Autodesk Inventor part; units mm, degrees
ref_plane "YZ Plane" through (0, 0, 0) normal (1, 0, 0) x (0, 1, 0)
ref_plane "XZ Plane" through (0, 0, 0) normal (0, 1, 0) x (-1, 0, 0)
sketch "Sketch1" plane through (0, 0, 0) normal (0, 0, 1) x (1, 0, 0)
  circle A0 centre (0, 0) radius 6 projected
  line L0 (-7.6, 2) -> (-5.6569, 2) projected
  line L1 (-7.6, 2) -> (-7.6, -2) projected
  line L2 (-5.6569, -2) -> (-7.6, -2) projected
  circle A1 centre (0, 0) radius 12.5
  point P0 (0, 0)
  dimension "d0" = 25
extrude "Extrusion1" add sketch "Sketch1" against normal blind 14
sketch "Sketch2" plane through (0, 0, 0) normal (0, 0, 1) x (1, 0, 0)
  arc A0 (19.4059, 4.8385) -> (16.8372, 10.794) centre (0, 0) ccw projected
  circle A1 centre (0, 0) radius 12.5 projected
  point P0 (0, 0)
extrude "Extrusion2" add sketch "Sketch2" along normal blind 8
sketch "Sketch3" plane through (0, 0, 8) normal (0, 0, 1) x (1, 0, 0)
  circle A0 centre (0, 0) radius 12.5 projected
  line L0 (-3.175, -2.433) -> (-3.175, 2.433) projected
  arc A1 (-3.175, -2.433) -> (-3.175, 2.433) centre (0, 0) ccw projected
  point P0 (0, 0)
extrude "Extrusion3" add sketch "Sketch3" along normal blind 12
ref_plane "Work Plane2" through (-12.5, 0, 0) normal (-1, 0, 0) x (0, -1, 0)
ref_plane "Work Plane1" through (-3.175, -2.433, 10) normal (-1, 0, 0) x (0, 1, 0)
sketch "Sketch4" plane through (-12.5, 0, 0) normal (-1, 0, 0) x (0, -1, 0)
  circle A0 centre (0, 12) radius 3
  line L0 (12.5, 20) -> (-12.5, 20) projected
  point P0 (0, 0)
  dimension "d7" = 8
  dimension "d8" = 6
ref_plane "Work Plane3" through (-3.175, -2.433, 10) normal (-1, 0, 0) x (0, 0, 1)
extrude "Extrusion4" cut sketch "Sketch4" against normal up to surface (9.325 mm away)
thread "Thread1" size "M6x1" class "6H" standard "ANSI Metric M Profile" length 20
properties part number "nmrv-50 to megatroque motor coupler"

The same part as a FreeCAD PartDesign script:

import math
import FreeCAD as App
import Part
import Sketcher

doc = App.newDocument("Part")
params = doc.addObject("Spreadsheet::Sheet", "Params")
for row, (alias, value) in enumerate([
    ("sketch1_diameter", "25 mm"),
    ("sketch1_radius", "6 mm"),
    ("sketch1_height", "4 mm"),
    ("pad1_length", "14 mm"),
    ("sketch2_diameter", "25 mm"),
    ("pad2_length", "8 mm"),
    ("sketch3_diameter", "25 mm"),
    ("sketch3_radius", "4 mm"),
    ("pad3_length", "12 mm"),
    ("sketch4_diameter", "6 mm"),
    ("pocket1_length", "9.325 mm"),
], start=1):
    params.set(f"A{row}", alias)
    params.set(f"B{row}", "=" + value)
    params.setAlias(f"B{row}", alias)

body = doc.addObject("PartDesign::Body", "Body")

sketch1 = doc.addObject("Sketcher::SketchObject", "Sketch")
body.addObject(sketch1)
sketch1.AttachmentSupport = (doc.XY_Plane, [""])
sketch1.MapMode = "FlatFace"
sketch1.addGeometry([
    Part.Circle(App.Vector(0, 0, 0), App.Vector(0, 0, 1), 12.5),
    Part.ArcOfCircle(Part.Circle(App.Vector(0, 0, 0), App.Vector(0, 0, 1), 6), math.radians(-160.528925), math.radians(160.528925)),
    Part.LineSegment(App.Vector(-5.6569, -2, 0), App.Vector(-7.6, -2, 0)),
    Part.LineSegment(App.Vector(-7.6, -2, 0), App.Vector(-7.6, 2, 0)),
    Part.LineSegment(App.Vector(-7.6, 2, 0), App.Vector(-5.6569, 2, 0)),
], False)
sketch1.addConstraint([
    Sketcher.Constraint("Coincident", 1, 1, 2, 1),
    Sketcher.Constraint("Coincident", 2, 2, 3, 1),
    Sketcher.Constraint("Coincident", 3, 2, 4, 1),
    Sketcher.Constraint("Coincident", 4, 2, 1, 2),
    Sketcher.Constraint("Horizontal", 2),
    Sketcher.Constraint("Vertical", 3),
    Sketcher.Constraint("Horizontal", 4),
    Sketcher.Constraint("Coincident", 0, 3, -1, 1),
    Sketcher.Constraint("Coincident", 1, 3, -1, 1),
    Sketcher.Constraint("Vertical", 1, 1, 4, 2),
    Sketcher.Constraint("Diameter", 0, 25.0),
    Sketcher.Constraint("Radius", 1, 6.0),
    Sketcher.Constraint("DistanceY", 3, 1, 3, 2, 4.0),
    Sketcher.Constraint("DistanceX", 2, 2, -1, 1, 7.6),
])
sketch1.setExpression("Constraints[10]", "Params.sketch1_diameter")
sketch1.setExpression("Constraints[11]", "Params.sketch1_radius")
sketch1.setExpression("Constraints[12]", "Params.sketch1_height")
pad1 = doc.addObject("PartDesign::Pad", "Pad")
body.addObject(pad1)
pad1.Profile = sketch1
pad1.setExpression("Length", "Params.pad1_length")
pad1.Reversed = True

sketch2 = doc.addObject("Sketcher::SketchObject", "Sketch001")
body.addObject(sketch2)
sketch2.AttachmentSupport = (doc.XY_Plane, [""])
sketch2.MapMode = "FlatFace"
sketch2.addGeometry(Part.Circle(App.Vector(0, 0, 0), App.Vector(0, 0, 1), 12.5), False)
sketch2.addConstraint([
    Sketcher.Constraint("Coincident", 0, 3, -1, 1),
    Sketcher.Constraint("Diameter", 0, 25.0),
])
sketch2.setExpression("Constraints[1]", "Params.sketch2_diameter")
pad2 = doc.addObject("PartDesign::Pad", "Pad001")
body.addObject(pad2)
pad2.Profile = sketch2
pad2.setExpression("Length", "Params.pad2_length")

sketch3 = doc.addObject("Sketcher::SketchObject", "Sketch002")
body.addObject(sketch3)
sketch3.AttachmentSupport = (doc.XY_Plane, [""])
sketch3.MapMode = "FlatFace"
sketch3.AttachmentOffset = App.Placement(App.Vector(0, 0, 8), App.Rotation())
sketch3.addGeometry([
    Part.Circle(App.Vector(0, 0, 0), App.Vector(0, 0, 1), 12.5),
    Part.ArcOfCircle(Part.Circle(App.Vector(0, 0, 0), App.Vector(0, 0, 1), 4.000014), math.radians(-142.537083), math.radians(142.537083)),
    Part.LineSegment(App.Vector(-3.175, -2.433, 0), App.Vector(-3.175, 2.433, 0)),
], False)
sketch3.addConstraint([
    Sketcher.Constraint("Coincident", 1, 1, 2, 1),
    Sketcher.Constraint("Coincident", 2, 2, 1, 2),
    Sketcher.Constraint("Vertical", 2),
    Sketcher.Constraint("Coincident", 0, 3, -1, 1),
    Sketcher.Constraint("Coincident", 1, 3, -1, 1),
    Sketcher.Constraint("Diameter", 0, 25.0),
    Sketcher.Constraint("Radius", 1, 4.0),
    Sketcher.Constraint("DistanceY", 2, 1, 2, 2, 4.866),
])
sketch3.setExpression("Constraints[5]", "Params.sketch3_diameter")
sketch3.setExpression("Constraints[6]", "Params.sketch3_radius")
pad3 = doc.addObject("PartDesign::Pad", "Pad002")
body.addObject(pad3)
pad3.Profile = sketch3
pad3.setExpression("Length", "Params.pad3_length")

sketch4 = doc.addObject("Sketcher::SketchObject", "Sketch003")
body.addObject(sketch4)
sketch4.AttachmentSupport = (doc.YZ_Plane, [""])
sketch4.MapMode = "FlatFace"
sketch4.AttachmentOffset = App.Placement(App.Vector(0, 0, -12.5), App.Rotation())
sketch4.addGeometry(Part.Circle(App.Vector(0, 12, 0), App.Vector(0, 0, 1), 3), False)
sketch4.addConstraint([
    Sketcher.Constraint("PointOnObject", 0, 3, -2),
    Sketcher.Constraint("Diameter", 0, 6.0),
    Sketcher.Constraint("DistanceY", -1, 1, 0, 3, 12.0),
])
sketch4.setExpression("Constraints[1]", "Params.sketch4_diameter")
pocket1 = doc.addObject("PartDesign::Pocket", "Pocket")
body.addObject(pocket1)
pocket1.Profile = sketch4
pocket1.setExpression("Length", "Params.pocket1_length")
pocket1.Reversed = True

doc.recompute()
